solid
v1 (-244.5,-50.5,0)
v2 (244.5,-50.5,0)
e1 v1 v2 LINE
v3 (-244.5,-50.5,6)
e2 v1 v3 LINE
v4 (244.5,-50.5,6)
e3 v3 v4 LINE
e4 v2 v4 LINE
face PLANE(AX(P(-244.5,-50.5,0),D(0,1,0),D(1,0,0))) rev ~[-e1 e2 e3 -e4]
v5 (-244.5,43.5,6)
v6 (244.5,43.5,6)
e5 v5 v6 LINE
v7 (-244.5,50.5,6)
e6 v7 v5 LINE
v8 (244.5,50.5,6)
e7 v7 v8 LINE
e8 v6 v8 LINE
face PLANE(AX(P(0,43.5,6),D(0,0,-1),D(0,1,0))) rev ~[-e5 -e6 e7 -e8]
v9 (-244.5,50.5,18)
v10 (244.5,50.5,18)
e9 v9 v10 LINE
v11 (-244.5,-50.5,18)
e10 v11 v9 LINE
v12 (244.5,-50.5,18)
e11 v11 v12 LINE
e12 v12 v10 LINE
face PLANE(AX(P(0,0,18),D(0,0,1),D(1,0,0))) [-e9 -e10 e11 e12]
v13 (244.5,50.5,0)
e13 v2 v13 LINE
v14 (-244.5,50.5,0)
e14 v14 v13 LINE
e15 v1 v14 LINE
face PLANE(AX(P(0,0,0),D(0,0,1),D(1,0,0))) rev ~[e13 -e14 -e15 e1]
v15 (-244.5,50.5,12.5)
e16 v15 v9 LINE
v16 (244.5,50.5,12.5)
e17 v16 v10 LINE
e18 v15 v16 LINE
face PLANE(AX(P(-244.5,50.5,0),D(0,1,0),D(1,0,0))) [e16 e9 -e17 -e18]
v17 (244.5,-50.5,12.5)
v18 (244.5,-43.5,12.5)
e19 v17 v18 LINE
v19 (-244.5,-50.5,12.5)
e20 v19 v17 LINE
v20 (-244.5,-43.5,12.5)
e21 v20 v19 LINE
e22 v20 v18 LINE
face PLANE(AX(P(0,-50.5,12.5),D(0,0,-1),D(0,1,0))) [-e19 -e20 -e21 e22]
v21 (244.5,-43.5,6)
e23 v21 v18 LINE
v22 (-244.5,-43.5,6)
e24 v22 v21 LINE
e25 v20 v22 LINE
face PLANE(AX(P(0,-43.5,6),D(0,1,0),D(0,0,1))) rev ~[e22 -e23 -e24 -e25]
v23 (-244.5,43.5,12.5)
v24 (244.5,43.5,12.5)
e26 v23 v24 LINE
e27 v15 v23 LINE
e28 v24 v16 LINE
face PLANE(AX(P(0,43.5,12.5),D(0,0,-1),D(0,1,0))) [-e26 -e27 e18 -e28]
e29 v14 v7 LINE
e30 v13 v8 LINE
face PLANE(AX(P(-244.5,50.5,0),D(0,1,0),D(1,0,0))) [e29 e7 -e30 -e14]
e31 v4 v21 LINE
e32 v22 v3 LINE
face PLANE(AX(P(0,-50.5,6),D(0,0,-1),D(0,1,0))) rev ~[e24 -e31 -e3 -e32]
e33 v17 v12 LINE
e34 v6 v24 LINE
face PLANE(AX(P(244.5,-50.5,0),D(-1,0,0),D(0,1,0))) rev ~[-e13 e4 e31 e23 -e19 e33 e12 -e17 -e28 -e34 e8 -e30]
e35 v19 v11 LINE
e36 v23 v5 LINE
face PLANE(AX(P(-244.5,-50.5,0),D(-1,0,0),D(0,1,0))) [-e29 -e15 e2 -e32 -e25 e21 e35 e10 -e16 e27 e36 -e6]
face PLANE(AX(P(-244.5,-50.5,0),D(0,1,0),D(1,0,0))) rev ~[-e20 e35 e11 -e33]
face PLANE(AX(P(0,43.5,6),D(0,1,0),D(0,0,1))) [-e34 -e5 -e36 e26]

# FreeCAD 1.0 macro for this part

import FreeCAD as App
import Part
import Sketcher
from FreeCAD import Vector
Q = App.Units.Quantity

doc = App.newDocument("Part")
params = doc.addObject("Spreadsheet::Sheet", "Params")
for row, (alias, value) in enumerate([
    ("sketch1_width", "489 mm"),
    ("sketch1_height", "101 mm"),
    ("pad1_length", "18 mm"),
    ("sketch2_width", "7 mm"),
    ("sketch2_height", "6.5 mm"),
], start=1):
    params.set(f"A{row}", alias)
    params.set(f"B{row}", "=" + value)
    params.setAlias(f"B{row}", alias)

body = doc.addObject("PartDesign::Body", "Body")

# Sketch on XY plane
sketch1 = body.newObject("Sketcher::SketchObject", "Sketch")
sketch1.AttachmentSupport = (doc.getObject("XY_Plane"), [""])
sketch1.MapMode = "FlatFace"
sketch1.addGeometry([
    Part.LineSegment(Vector(-244, 50, 0), Vector(-244, -50, 0)),
    Part.LineSegment(Vector(-244, -50, 0), Vector(244, -50, 0)),
    Part.LineSegment(Vector(244, -50, 0), Vector(244, 50, 0)),
    Part.LineSegment(Vector(244, 50, 0), Vector(-244, 50, 0)),
], False)
sketch1.addConstraint([
    Sketcher.Constraint("Coincident", 0, 2, 1, 1),
    Sketcher.Constraint("Coincident", 1, 2, 2, 1),
    Sketcher.Constraint("Coincident", 2, 2, 3, 1),
    Sketcher.Constraint("Coincident", 3, 2, 0, 1),
    Sketcher.Constraint("Vertical", 0),
    Sketcher.Constraint("Horizontal", 1),
    Sketcher.Constraint("Vertical", 2),
    Sketcher.Constraint("Horizontal", 3),
    Sketcher.Constraint("Symmetric", 0, 2, 2, 2, -1, 1),
    Sketcher.Constraint("DistanceX", 1, 1, 1, 2, Q("489 mm")),
    Sketcher.Constraint("DistanceY", 0, 2, 0, 1, Q("101 mm")),
])
sketch1.setExpression("Constraints[9]", "Params.sketch1_width")
sketch1.setExpression("Constraints[10]", "Params.sketch1_height")
pad1 = body.newObject("PartDesign::Pad", "Pad")
pad1.Profile = sketch1
pad1.setExpression("Length", "Params.pad1_length")

# Sketch on YZ plane
sketch2 = body.newObject("Sketcher::SketchObject", "Sketch001")
sketch2.AttachmentSupport = (doc.getObject("YZ_Plane"), [""])
sketch2.MapMode = "FlatFace"
sketch2.addGeometry([
    Part.LineSegment(Vector(44, 12, 0), Vector(44, 6, 0)),  # 0
    Part.LineSegment(Vector(44, 6, 0), Vector(50, 6, 0)),  # 1
    Part.LineSegment(Vector(50, 6, 0), Vector(50, 12, 0)),  # 2
    Part.LineSegment(Vector(50, 12, 0), Vector(44, 12, 0)),  # 3
    Part.LineSegment(Vector(-50, 12, 0), Vector(-50, 6, 0)),  # 4
    Part.LineSegment(Vector(-50, 6, 0), Vector(-44, 6, 0)),  # 5
    Part.LineSegment(Vector(-44, 6, 0), Vector(-44, 12, 0)),  # 6
    Part.LineSegment(Vector(-44, 12, 0), Vector(-50, 12, 0)),  # 7
], False)
sketch2.addConstraint([
    Sketcher.Constraint("Coincident", 0, 2, 1, 1),
    Sketcher.Constraint("Coincident", 1, 2, 2, 1),
    Sketcher.Constraint("Coincident", 2, 2, 3, 1),
    Sketcher.Constraint("Coincident", 3, 2, 0, 1),
    Sketcher.Constraint("Coincident", 4, 2, 5, 1),
    Sketcher.Constraint("Coincident", 5, 2, 6, 1),
    Sketcher.Constraint("Coincident", 6, 2, 7, 1),
    Sketcher.Constraint("Coincident", 7, 2, 4, 1),
    Sketcher.Constraint("Vertical", 0),
    Sketcher.Constraint("Horizontal", 1),
    Sketcher.Constraint("Vertical", 2),
    Sketcher.Constraint("Horizontal", 3),
    Sketcher.Constraint("Vertical", 4),
    Sketcher.Constraint("Horizontal", 5),
    Sketcher.Constraint("Vertical", 6),
    Sketcher.Constraint("Horizontal", 7),
    Sketcher.Constraint("Symmetric", 1, 2, 4, 2, -2),
    Sketcher.Constraint("Symmetric", 3, 2, 6, 2, -2),
    Sketcher.Constraint("DistanceX", 1, 1, 1, 2, Q("7 mm")),
    Sketcher.Constraint("DistanceY", 0, 2, 0, 1, Q("6.5 mm")),
    Sketcher.Constraint("DistanceY", -1, 1, 0, 2, Q("6 mm")),
    Sketcher.Constraint("DistanceX", 4, 2, 0, 2, Q("94 mm")),
])
sketch2.setExpression("Constraints[18]", "Params.sketch2_width")
sketch2.setExpression("Constraints[19]", "Params.sketch2_height")
pocket1 = body.newObject("PartDesign::Pocket", "Pocket")
pocket1.Profile = sketch2
pocket1.Type = "ThroughAll"
pocket1.Midplane = True

doc.recompute()
